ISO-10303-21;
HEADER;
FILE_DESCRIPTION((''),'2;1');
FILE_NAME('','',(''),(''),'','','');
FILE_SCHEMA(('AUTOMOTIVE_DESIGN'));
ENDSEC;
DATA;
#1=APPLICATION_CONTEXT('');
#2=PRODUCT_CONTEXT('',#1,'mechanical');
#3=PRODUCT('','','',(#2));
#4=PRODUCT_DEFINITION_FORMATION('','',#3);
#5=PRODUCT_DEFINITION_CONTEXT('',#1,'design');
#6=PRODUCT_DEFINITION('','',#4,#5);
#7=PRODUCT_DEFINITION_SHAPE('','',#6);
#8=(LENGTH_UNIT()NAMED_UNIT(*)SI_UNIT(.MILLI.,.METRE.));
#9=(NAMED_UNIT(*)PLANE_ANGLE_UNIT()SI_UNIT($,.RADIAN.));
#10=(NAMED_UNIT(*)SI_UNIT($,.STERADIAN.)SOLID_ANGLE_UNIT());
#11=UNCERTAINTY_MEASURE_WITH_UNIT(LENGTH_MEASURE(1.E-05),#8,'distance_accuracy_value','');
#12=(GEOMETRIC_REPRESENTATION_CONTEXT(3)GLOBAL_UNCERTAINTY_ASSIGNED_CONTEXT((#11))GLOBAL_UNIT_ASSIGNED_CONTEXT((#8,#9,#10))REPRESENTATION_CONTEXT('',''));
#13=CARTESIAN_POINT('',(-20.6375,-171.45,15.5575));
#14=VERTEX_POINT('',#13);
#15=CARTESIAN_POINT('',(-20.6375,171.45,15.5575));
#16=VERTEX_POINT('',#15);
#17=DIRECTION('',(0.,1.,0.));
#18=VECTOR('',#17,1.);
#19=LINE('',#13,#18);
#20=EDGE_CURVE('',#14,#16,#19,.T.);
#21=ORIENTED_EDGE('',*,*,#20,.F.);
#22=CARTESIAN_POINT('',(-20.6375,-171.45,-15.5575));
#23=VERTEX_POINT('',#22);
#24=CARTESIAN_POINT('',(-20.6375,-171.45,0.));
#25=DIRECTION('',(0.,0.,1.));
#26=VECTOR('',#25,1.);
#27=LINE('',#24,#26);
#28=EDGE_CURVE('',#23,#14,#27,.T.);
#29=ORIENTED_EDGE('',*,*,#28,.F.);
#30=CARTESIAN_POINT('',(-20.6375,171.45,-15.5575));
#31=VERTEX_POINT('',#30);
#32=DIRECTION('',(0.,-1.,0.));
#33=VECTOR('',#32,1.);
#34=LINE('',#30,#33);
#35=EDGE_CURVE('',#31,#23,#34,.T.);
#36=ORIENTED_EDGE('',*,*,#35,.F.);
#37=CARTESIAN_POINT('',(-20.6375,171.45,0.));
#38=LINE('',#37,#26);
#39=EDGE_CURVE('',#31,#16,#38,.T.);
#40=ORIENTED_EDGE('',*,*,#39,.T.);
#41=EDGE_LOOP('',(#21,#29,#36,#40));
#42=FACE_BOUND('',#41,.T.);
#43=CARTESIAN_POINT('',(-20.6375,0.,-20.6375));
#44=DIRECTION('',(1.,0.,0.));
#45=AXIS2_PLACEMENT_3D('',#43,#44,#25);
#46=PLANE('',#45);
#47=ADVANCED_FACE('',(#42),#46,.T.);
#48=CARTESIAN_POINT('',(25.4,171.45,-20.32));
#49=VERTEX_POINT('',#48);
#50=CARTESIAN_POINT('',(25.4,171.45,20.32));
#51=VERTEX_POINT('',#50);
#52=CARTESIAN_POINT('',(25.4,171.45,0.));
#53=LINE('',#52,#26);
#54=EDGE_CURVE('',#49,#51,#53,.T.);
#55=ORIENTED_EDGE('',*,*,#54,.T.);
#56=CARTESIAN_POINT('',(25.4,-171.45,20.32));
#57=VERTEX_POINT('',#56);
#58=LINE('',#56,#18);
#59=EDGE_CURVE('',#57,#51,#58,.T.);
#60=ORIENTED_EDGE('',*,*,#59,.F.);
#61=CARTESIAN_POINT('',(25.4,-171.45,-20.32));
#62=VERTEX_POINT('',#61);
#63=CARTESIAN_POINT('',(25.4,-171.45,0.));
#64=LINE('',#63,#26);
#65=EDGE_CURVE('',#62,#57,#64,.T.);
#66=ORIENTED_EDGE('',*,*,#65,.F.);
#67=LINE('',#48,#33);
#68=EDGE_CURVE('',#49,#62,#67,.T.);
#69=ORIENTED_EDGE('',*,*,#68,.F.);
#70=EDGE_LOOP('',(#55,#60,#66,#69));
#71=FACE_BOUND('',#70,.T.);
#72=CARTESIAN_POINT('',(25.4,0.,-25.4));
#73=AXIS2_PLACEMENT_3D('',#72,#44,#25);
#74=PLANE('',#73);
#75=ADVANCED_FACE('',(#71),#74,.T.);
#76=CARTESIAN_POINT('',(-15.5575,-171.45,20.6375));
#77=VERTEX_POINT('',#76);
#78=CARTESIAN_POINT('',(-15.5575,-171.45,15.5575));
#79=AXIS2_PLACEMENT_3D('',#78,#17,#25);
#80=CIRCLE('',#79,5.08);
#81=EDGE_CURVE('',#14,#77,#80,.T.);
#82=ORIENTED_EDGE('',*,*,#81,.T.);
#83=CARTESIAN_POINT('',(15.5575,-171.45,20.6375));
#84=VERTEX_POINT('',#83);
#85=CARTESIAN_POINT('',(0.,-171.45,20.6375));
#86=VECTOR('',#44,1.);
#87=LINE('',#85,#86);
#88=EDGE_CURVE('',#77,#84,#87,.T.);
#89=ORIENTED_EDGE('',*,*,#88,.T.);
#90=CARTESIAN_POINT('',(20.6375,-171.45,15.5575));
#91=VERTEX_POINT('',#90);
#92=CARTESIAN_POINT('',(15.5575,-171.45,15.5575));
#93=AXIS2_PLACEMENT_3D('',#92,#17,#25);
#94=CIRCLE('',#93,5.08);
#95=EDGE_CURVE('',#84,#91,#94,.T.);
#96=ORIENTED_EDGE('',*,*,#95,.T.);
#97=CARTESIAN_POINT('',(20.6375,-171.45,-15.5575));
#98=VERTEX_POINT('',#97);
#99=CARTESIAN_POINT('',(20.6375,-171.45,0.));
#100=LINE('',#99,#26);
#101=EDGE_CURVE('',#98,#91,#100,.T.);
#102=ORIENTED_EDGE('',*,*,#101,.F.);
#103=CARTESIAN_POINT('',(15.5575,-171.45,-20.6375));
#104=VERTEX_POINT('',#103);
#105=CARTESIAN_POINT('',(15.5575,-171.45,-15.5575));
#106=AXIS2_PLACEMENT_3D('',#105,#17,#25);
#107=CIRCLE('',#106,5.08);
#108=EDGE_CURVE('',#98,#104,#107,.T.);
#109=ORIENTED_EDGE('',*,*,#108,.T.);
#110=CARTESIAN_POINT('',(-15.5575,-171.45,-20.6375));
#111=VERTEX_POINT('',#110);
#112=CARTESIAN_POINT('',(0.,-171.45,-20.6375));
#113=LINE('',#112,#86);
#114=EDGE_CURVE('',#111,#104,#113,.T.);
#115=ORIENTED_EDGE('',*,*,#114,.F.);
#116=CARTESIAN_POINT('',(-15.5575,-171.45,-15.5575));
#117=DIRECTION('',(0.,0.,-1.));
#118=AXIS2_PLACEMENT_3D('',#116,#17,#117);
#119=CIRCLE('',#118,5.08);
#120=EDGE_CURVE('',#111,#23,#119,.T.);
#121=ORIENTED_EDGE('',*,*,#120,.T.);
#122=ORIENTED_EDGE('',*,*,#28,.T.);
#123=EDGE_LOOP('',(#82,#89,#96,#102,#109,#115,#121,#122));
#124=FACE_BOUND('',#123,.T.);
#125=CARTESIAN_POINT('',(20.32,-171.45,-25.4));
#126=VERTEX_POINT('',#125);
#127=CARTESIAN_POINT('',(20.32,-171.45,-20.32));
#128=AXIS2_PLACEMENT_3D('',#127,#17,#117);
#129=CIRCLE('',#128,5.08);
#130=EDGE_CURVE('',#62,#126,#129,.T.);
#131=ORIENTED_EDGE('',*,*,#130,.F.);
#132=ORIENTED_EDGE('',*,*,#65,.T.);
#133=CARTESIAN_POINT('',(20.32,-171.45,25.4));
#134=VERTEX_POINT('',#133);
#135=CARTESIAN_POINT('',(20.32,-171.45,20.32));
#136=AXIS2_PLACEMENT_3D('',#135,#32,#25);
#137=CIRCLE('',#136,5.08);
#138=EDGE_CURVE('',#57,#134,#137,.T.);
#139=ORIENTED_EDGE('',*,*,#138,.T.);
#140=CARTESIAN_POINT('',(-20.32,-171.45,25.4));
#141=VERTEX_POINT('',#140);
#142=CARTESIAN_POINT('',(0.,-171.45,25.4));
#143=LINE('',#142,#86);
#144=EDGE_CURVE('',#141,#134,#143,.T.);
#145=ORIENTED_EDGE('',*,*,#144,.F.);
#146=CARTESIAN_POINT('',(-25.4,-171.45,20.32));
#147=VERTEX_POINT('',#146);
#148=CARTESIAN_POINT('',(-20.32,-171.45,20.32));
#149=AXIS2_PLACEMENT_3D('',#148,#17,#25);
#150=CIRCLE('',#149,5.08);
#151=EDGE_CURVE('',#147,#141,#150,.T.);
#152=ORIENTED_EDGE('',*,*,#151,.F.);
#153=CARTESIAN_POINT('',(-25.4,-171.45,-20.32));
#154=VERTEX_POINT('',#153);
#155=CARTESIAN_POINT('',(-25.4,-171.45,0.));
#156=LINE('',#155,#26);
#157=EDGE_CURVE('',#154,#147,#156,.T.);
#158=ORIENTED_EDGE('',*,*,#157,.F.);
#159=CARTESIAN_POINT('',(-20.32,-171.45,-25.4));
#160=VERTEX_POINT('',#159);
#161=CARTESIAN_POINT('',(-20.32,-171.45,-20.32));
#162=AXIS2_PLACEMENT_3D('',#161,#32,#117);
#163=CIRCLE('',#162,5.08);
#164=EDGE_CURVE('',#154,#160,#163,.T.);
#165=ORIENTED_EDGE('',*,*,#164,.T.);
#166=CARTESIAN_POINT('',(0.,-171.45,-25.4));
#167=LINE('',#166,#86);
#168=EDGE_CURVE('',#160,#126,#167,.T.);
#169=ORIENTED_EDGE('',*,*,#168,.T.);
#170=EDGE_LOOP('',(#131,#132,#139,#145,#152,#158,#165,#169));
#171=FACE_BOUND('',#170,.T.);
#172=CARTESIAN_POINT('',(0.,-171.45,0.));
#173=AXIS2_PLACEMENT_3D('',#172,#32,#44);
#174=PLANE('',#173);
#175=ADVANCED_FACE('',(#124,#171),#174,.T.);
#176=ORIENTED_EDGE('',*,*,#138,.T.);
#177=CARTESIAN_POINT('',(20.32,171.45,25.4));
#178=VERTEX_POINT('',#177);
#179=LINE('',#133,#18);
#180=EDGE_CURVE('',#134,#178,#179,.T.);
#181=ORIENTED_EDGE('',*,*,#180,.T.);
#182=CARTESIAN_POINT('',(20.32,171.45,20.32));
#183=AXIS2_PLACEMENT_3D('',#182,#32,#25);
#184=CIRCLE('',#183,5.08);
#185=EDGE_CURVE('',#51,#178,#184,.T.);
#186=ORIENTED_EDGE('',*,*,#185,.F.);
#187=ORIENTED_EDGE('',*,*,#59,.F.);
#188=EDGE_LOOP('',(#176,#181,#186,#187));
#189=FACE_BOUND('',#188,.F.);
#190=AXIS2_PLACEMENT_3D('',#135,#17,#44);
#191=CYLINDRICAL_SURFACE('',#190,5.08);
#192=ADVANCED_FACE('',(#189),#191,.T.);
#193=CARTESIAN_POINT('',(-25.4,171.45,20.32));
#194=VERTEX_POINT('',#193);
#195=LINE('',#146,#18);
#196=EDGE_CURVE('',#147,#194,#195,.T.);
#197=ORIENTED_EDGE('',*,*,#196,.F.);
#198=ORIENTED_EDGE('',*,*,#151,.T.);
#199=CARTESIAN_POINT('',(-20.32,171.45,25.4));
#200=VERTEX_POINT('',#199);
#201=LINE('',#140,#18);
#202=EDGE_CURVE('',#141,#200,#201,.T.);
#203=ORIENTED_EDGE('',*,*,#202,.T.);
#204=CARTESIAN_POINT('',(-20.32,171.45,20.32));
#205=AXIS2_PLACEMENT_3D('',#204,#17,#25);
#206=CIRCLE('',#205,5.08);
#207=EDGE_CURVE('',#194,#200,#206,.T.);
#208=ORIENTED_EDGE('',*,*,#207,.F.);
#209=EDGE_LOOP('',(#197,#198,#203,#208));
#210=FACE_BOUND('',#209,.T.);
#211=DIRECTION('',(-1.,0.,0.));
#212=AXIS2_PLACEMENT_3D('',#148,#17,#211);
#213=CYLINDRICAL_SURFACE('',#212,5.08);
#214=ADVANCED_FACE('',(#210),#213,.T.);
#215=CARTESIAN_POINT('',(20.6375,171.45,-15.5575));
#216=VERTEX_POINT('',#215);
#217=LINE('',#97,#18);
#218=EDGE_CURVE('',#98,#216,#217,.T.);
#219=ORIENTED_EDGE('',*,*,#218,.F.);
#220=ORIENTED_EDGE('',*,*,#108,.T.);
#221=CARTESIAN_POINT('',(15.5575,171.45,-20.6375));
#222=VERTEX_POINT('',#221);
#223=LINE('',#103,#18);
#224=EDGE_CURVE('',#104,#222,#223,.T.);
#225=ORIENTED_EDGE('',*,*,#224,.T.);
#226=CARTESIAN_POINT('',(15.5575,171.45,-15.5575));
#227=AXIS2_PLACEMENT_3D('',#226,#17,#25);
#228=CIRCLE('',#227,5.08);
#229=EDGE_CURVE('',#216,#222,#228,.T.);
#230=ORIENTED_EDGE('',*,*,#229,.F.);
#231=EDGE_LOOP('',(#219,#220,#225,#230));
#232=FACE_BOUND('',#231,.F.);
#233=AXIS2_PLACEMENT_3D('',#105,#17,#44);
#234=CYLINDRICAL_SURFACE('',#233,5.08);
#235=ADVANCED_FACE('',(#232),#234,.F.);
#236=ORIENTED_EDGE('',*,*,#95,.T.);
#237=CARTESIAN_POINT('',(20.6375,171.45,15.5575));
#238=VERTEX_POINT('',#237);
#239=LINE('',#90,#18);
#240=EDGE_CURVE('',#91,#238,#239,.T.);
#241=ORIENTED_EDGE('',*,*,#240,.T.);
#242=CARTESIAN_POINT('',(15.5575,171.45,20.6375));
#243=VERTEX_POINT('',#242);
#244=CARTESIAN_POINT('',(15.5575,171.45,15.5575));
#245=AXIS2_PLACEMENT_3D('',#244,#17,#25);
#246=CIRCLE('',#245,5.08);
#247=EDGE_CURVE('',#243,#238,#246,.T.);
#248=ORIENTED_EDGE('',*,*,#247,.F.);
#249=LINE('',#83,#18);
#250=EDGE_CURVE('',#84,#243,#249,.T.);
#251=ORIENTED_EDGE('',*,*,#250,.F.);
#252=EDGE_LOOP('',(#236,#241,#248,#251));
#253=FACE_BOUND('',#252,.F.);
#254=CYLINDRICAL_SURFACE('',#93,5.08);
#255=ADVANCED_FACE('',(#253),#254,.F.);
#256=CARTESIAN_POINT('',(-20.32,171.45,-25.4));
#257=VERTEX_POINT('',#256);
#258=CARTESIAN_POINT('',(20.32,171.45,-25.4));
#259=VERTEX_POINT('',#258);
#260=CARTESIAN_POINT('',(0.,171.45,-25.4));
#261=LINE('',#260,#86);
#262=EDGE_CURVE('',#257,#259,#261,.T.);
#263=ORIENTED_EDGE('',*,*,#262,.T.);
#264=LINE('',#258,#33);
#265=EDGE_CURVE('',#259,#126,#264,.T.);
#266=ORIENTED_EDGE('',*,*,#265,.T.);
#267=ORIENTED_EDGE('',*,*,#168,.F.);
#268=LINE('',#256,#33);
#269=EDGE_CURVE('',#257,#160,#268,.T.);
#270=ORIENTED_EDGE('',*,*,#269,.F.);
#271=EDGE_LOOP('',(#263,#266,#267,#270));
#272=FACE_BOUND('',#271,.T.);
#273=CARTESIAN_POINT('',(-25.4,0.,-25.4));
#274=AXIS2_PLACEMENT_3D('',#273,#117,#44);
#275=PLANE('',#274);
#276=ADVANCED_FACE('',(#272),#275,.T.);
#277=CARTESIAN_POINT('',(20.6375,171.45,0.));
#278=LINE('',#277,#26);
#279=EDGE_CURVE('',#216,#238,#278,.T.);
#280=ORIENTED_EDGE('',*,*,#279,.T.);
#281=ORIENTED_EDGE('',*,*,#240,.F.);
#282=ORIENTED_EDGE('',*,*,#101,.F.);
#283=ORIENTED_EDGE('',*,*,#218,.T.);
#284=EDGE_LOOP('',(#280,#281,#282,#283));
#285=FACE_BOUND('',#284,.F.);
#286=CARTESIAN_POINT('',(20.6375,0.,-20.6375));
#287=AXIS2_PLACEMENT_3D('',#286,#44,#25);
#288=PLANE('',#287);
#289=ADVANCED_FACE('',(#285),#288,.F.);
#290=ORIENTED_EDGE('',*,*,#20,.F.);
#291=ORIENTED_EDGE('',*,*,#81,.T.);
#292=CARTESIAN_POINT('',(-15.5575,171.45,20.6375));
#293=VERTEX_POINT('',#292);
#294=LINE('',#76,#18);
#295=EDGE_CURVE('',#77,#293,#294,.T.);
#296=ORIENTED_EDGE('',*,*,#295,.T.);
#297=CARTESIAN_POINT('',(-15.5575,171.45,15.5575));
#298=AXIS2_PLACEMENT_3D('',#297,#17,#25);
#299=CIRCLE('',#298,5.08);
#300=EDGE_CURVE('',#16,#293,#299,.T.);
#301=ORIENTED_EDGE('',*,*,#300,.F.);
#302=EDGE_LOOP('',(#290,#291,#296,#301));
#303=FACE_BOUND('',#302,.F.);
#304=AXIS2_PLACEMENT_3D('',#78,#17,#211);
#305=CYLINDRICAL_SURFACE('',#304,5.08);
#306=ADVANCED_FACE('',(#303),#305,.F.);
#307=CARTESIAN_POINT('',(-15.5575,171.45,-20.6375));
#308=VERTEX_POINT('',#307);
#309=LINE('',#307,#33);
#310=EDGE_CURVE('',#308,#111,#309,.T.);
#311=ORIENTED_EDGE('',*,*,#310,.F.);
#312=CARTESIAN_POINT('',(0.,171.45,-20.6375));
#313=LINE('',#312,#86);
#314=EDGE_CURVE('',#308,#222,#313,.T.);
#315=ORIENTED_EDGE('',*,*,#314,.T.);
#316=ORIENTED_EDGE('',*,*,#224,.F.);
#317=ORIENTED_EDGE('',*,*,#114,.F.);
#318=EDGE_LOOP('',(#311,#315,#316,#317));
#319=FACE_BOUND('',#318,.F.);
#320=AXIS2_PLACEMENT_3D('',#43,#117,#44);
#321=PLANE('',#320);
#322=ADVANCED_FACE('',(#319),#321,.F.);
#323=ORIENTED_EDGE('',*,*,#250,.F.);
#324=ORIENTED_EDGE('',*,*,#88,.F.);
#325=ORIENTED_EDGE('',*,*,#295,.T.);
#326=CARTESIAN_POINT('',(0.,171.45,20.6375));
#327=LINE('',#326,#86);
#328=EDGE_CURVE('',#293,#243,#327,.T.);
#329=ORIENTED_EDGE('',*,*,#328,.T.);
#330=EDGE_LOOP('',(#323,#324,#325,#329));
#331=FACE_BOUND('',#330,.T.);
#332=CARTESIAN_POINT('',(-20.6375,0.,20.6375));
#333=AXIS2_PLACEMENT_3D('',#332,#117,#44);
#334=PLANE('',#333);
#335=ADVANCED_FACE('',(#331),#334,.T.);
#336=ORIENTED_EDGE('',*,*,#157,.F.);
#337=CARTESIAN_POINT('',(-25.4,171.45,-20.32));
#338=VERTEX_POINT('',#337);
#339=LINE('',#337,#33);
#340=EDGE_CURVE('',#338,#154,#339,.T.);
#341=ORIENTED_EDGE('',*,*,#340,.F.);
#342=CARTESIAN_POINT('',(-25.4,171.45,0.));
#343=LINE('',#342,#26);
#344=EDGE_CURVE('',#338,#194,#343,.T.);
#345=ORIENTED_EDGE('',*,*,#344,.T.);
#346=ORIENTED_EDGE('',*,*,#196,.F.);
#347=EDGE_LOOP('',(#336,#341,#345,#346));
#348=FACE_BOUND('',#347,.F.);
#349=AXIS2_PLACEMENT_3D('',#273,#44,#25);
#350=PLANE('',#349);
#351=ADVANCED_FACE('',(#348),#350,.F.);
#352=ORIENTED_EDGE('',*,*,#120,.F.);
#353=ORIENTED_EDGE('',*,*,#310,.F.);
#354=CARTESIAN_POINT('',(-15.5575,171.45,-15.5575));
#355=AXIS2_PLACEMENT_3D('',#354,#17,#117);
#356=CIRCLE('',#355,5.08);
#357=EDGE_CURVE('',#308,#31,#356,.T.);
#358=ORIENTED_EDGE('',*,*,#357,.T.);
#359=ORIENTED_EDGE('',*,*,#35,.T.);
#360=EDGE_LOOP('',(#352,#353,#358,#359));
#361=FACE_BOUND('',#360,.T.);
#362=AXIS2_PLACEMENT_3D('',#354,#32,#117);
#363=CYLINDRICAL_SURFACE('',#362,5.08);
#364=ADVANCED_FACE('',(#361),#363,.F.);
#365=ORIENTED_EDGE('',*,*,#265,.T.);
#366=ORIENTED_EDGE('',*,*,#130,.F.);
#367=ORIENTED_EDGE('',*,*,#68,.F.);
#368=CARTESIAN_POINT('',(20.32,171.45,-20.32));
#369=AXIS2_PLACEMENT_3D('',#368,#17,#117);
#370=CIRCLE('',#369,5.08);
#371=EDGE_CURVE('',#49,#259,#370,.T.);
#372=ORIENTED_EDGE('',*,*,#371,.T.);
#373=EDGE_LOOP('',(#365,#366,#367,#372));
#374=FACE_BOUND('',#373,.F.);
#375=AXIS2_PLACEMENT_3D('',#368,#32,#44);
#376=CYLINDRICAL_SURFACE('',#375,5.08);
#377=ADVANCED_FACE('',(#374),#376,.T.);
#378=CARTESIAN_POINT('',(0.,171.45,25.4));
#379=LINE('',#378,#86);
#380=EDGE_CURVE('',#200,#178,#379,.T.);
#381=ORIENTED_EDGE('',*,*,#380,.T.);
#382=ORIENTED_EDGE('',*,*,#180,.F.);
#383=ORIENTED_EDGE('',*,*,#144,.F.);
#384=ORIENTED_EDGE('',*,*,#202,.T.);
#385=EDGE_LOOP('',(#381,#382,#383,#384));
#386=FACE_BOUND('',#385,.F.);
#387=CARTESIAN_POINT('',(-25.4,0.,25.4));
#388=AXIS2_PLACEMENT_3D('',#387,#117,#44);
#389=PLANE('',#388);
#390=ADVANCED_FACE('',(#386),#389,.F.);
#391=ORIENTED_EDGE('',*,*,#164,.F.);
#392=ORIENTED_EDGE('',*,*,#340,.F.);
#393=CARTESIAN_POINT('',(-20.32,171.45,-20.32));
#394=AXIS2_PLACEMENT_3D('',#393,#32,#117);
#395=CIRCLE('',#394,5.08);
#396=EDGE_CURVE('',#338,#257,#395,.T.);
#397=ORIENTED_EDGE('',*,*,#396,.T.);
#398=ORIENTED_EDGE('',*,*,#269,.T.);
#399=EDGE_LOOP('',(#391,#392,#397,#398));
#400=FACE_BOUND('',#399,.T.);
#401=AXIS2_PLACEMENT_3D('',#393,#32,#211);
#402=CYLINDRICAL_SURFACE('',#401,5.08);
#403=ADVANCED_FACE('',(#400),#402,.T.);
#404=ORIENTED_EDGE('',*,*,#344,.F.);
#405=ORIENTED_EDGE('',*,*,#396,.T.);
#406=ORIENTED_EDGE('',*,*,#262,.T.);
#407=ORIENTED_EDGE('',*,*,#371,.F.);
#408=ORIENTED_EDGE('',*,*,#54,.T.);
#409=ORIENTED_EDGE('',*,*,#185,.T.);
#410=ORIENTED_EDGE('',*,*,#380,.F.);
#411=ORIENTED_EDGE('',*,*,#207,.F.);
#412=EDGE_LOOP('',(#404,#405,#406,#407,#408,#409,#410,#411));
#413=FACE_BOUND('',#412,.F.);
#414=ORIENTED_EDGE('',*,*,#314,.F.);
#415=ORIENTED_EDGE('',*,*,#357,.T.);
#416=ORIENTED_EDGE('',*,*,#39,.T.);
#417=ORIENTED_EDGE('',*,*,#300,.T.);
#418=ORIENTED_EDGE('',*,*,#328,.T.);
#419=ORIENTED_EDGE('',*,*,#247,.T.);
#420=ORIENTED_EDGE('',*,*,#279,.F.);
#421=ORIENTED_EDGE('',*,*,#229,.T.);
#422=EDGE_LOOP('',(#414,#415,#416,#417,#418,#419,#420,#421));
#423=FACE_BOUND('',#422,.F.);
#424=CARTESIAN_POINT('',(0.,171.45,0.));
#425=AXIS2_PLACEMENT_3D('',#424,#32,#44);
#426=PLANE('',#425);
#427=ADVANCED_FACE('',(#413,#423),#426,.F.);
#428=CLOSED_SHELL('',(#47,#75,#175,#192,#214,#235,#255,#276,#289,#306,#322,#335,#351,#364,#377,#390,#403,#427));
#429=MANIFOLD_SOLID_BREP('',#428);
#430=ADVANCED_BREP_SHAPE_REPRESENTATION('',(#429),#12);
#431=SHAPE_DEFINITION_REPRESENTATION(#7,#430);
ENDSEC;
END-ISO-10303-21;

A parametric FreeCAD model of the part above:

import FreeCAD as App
import Part
import Sketcher
from FreeCAD import Vector
Q = App.Units.Quantity


def edges_at(feature, points):
    """Names of the edges that pass closest to the given points."""
    edges = feature.Shape.Edges
    near = lambda p: min(range(len(edges)), key=lambda i: edges[i].distToShape(Part.Vertex(*p))[0])
    return sorted({f"Edge{near(p) + 1}" for p in points})

doc = App.newDocument("Part")
body = doc.addObject("PartDesign::Body", "Body")

# Sketch on XZ plane
sketch1 = doc.addObject("Sketcher::SketchObject", "Sketch")
body.addObject(sketch1)
sketch1.AttachmentSupport = (doc.XZ_Plane, [""])
sketch1.MapMode = "FlatFace"
sketch1.addGeometry([
    Part.LineSegment(Vector(-25, 25, 0), Vector(-25, -25, 0)),  # 0
    Part.LineSegment(Vector(-25, -25, 0), Vector(25, -25, 0)),  # 1
    Part.LineSegment(Vector(25, -25, 0), Vector(25, 25, 0)),  # 2
    Part.LineSegment(Vector(25, 25, 0), Vector(-25, 25, 0)),  # 3
    Part.LineSegment(Vector(21, -21, 0), Vector(-21, -21, 0)),  # 4
    Part.LineSegment(Vector(-21, -21, 0), Vector(-21, 21, 0)),  # 5
    Part.LineSegment(Vector(-21, 21, 0), Vector(21, 21, 0)),  # 6
    Part.LineSegment(Vector(21, 21, 0), Vector(21, -21, 0)),  # 7
], False)
sketch1.addConstraint([
    Sketcher.Constraint("Coincident", 0, 2, 1, 1),
    Sketcher.Constraint("Coincident", 1, 2, 2, 1),
    Sketcher.Constraint("Coincident", 2, 2, 3, 1),
    Sketcher.Constraint("Coincident", 3, 2, 0, 1),
    Sketcher.Constraint("Coincident", 4, 2, 5, 1),
    Sketcher.Constraint("Coincident", 5, 2, 6, 1),
    Sketcher.Constraint("Coincident", 6, 2, 7, 1),
    Sketcher.Constraint("Coincident", 7, 2, 4, 1),
    Sketcher.Constraint("Vertical", 0),
    Sketcher.Constraint("Horizontal", 1),
    Sketcher.Constraint("Vertical", 2),
    Sketcher.Constraint("Horizontal", 3),
    Sketcher.Constraint("Horizontal", 4),
    Sketcher.Constraint("Vertical", 5),
    Sketcher.Constraint("Horizontal", 6),
    Sketcher.Constraint("Vertical", 7),
    Sketcher.Constraint("Symmetric", 0, 2, 2, 2, -1, 1),
    Sketcher.Constraint("Symmetric", 4, 2, 6, 2, -1, 1),
    Sketcher.Constraint("Equal", 3, 0),
    Sketcher.Constraint("Equal", 6, 5),
    Sketcher.Constraint("DistanceX", 1, 1, 1, 2, Q("2 in")),
    Sketcher.Constraint("DistanceX", 4, 2, 4, 1, Q("1.625 in")),
])
pad1 = doc.addObject("PartDesign::Pad", "Pad")
body.addObject(pad1)
pad1.Profile = sketch1
pad1.Length = Q("13.5 in")
pad1.Midplane = True
doc.recompute()

fillet = doc.addObject("PartDesign::Fillet", "Fillet")
body.addObject(fillet)
fillet.Base = (pad1, edges_at(pad1, [
    (-20.637, 0, 20.637),
    (-25.4, 0, -25.4),
    (25.4, 0, -25.4),
    (20.637, 0, 20.637),
    (25.4, 0, 25.4),
    (-25.4, 0, 25.4),
]))
fillet.Radius = Q("0.2 in")
doc.recompute()

fillet2 = doc.addObject("PartDesign::Fillet", "Fillet001")
body.addObject(fillet2)
fillet2.Base = (fillet, edges_at(fillet, [(-20.637, 0, -20.637), (20.637, 0, -20.637)]))
fillet2.Radius = Q("0.2 in")

doc.recompute()
